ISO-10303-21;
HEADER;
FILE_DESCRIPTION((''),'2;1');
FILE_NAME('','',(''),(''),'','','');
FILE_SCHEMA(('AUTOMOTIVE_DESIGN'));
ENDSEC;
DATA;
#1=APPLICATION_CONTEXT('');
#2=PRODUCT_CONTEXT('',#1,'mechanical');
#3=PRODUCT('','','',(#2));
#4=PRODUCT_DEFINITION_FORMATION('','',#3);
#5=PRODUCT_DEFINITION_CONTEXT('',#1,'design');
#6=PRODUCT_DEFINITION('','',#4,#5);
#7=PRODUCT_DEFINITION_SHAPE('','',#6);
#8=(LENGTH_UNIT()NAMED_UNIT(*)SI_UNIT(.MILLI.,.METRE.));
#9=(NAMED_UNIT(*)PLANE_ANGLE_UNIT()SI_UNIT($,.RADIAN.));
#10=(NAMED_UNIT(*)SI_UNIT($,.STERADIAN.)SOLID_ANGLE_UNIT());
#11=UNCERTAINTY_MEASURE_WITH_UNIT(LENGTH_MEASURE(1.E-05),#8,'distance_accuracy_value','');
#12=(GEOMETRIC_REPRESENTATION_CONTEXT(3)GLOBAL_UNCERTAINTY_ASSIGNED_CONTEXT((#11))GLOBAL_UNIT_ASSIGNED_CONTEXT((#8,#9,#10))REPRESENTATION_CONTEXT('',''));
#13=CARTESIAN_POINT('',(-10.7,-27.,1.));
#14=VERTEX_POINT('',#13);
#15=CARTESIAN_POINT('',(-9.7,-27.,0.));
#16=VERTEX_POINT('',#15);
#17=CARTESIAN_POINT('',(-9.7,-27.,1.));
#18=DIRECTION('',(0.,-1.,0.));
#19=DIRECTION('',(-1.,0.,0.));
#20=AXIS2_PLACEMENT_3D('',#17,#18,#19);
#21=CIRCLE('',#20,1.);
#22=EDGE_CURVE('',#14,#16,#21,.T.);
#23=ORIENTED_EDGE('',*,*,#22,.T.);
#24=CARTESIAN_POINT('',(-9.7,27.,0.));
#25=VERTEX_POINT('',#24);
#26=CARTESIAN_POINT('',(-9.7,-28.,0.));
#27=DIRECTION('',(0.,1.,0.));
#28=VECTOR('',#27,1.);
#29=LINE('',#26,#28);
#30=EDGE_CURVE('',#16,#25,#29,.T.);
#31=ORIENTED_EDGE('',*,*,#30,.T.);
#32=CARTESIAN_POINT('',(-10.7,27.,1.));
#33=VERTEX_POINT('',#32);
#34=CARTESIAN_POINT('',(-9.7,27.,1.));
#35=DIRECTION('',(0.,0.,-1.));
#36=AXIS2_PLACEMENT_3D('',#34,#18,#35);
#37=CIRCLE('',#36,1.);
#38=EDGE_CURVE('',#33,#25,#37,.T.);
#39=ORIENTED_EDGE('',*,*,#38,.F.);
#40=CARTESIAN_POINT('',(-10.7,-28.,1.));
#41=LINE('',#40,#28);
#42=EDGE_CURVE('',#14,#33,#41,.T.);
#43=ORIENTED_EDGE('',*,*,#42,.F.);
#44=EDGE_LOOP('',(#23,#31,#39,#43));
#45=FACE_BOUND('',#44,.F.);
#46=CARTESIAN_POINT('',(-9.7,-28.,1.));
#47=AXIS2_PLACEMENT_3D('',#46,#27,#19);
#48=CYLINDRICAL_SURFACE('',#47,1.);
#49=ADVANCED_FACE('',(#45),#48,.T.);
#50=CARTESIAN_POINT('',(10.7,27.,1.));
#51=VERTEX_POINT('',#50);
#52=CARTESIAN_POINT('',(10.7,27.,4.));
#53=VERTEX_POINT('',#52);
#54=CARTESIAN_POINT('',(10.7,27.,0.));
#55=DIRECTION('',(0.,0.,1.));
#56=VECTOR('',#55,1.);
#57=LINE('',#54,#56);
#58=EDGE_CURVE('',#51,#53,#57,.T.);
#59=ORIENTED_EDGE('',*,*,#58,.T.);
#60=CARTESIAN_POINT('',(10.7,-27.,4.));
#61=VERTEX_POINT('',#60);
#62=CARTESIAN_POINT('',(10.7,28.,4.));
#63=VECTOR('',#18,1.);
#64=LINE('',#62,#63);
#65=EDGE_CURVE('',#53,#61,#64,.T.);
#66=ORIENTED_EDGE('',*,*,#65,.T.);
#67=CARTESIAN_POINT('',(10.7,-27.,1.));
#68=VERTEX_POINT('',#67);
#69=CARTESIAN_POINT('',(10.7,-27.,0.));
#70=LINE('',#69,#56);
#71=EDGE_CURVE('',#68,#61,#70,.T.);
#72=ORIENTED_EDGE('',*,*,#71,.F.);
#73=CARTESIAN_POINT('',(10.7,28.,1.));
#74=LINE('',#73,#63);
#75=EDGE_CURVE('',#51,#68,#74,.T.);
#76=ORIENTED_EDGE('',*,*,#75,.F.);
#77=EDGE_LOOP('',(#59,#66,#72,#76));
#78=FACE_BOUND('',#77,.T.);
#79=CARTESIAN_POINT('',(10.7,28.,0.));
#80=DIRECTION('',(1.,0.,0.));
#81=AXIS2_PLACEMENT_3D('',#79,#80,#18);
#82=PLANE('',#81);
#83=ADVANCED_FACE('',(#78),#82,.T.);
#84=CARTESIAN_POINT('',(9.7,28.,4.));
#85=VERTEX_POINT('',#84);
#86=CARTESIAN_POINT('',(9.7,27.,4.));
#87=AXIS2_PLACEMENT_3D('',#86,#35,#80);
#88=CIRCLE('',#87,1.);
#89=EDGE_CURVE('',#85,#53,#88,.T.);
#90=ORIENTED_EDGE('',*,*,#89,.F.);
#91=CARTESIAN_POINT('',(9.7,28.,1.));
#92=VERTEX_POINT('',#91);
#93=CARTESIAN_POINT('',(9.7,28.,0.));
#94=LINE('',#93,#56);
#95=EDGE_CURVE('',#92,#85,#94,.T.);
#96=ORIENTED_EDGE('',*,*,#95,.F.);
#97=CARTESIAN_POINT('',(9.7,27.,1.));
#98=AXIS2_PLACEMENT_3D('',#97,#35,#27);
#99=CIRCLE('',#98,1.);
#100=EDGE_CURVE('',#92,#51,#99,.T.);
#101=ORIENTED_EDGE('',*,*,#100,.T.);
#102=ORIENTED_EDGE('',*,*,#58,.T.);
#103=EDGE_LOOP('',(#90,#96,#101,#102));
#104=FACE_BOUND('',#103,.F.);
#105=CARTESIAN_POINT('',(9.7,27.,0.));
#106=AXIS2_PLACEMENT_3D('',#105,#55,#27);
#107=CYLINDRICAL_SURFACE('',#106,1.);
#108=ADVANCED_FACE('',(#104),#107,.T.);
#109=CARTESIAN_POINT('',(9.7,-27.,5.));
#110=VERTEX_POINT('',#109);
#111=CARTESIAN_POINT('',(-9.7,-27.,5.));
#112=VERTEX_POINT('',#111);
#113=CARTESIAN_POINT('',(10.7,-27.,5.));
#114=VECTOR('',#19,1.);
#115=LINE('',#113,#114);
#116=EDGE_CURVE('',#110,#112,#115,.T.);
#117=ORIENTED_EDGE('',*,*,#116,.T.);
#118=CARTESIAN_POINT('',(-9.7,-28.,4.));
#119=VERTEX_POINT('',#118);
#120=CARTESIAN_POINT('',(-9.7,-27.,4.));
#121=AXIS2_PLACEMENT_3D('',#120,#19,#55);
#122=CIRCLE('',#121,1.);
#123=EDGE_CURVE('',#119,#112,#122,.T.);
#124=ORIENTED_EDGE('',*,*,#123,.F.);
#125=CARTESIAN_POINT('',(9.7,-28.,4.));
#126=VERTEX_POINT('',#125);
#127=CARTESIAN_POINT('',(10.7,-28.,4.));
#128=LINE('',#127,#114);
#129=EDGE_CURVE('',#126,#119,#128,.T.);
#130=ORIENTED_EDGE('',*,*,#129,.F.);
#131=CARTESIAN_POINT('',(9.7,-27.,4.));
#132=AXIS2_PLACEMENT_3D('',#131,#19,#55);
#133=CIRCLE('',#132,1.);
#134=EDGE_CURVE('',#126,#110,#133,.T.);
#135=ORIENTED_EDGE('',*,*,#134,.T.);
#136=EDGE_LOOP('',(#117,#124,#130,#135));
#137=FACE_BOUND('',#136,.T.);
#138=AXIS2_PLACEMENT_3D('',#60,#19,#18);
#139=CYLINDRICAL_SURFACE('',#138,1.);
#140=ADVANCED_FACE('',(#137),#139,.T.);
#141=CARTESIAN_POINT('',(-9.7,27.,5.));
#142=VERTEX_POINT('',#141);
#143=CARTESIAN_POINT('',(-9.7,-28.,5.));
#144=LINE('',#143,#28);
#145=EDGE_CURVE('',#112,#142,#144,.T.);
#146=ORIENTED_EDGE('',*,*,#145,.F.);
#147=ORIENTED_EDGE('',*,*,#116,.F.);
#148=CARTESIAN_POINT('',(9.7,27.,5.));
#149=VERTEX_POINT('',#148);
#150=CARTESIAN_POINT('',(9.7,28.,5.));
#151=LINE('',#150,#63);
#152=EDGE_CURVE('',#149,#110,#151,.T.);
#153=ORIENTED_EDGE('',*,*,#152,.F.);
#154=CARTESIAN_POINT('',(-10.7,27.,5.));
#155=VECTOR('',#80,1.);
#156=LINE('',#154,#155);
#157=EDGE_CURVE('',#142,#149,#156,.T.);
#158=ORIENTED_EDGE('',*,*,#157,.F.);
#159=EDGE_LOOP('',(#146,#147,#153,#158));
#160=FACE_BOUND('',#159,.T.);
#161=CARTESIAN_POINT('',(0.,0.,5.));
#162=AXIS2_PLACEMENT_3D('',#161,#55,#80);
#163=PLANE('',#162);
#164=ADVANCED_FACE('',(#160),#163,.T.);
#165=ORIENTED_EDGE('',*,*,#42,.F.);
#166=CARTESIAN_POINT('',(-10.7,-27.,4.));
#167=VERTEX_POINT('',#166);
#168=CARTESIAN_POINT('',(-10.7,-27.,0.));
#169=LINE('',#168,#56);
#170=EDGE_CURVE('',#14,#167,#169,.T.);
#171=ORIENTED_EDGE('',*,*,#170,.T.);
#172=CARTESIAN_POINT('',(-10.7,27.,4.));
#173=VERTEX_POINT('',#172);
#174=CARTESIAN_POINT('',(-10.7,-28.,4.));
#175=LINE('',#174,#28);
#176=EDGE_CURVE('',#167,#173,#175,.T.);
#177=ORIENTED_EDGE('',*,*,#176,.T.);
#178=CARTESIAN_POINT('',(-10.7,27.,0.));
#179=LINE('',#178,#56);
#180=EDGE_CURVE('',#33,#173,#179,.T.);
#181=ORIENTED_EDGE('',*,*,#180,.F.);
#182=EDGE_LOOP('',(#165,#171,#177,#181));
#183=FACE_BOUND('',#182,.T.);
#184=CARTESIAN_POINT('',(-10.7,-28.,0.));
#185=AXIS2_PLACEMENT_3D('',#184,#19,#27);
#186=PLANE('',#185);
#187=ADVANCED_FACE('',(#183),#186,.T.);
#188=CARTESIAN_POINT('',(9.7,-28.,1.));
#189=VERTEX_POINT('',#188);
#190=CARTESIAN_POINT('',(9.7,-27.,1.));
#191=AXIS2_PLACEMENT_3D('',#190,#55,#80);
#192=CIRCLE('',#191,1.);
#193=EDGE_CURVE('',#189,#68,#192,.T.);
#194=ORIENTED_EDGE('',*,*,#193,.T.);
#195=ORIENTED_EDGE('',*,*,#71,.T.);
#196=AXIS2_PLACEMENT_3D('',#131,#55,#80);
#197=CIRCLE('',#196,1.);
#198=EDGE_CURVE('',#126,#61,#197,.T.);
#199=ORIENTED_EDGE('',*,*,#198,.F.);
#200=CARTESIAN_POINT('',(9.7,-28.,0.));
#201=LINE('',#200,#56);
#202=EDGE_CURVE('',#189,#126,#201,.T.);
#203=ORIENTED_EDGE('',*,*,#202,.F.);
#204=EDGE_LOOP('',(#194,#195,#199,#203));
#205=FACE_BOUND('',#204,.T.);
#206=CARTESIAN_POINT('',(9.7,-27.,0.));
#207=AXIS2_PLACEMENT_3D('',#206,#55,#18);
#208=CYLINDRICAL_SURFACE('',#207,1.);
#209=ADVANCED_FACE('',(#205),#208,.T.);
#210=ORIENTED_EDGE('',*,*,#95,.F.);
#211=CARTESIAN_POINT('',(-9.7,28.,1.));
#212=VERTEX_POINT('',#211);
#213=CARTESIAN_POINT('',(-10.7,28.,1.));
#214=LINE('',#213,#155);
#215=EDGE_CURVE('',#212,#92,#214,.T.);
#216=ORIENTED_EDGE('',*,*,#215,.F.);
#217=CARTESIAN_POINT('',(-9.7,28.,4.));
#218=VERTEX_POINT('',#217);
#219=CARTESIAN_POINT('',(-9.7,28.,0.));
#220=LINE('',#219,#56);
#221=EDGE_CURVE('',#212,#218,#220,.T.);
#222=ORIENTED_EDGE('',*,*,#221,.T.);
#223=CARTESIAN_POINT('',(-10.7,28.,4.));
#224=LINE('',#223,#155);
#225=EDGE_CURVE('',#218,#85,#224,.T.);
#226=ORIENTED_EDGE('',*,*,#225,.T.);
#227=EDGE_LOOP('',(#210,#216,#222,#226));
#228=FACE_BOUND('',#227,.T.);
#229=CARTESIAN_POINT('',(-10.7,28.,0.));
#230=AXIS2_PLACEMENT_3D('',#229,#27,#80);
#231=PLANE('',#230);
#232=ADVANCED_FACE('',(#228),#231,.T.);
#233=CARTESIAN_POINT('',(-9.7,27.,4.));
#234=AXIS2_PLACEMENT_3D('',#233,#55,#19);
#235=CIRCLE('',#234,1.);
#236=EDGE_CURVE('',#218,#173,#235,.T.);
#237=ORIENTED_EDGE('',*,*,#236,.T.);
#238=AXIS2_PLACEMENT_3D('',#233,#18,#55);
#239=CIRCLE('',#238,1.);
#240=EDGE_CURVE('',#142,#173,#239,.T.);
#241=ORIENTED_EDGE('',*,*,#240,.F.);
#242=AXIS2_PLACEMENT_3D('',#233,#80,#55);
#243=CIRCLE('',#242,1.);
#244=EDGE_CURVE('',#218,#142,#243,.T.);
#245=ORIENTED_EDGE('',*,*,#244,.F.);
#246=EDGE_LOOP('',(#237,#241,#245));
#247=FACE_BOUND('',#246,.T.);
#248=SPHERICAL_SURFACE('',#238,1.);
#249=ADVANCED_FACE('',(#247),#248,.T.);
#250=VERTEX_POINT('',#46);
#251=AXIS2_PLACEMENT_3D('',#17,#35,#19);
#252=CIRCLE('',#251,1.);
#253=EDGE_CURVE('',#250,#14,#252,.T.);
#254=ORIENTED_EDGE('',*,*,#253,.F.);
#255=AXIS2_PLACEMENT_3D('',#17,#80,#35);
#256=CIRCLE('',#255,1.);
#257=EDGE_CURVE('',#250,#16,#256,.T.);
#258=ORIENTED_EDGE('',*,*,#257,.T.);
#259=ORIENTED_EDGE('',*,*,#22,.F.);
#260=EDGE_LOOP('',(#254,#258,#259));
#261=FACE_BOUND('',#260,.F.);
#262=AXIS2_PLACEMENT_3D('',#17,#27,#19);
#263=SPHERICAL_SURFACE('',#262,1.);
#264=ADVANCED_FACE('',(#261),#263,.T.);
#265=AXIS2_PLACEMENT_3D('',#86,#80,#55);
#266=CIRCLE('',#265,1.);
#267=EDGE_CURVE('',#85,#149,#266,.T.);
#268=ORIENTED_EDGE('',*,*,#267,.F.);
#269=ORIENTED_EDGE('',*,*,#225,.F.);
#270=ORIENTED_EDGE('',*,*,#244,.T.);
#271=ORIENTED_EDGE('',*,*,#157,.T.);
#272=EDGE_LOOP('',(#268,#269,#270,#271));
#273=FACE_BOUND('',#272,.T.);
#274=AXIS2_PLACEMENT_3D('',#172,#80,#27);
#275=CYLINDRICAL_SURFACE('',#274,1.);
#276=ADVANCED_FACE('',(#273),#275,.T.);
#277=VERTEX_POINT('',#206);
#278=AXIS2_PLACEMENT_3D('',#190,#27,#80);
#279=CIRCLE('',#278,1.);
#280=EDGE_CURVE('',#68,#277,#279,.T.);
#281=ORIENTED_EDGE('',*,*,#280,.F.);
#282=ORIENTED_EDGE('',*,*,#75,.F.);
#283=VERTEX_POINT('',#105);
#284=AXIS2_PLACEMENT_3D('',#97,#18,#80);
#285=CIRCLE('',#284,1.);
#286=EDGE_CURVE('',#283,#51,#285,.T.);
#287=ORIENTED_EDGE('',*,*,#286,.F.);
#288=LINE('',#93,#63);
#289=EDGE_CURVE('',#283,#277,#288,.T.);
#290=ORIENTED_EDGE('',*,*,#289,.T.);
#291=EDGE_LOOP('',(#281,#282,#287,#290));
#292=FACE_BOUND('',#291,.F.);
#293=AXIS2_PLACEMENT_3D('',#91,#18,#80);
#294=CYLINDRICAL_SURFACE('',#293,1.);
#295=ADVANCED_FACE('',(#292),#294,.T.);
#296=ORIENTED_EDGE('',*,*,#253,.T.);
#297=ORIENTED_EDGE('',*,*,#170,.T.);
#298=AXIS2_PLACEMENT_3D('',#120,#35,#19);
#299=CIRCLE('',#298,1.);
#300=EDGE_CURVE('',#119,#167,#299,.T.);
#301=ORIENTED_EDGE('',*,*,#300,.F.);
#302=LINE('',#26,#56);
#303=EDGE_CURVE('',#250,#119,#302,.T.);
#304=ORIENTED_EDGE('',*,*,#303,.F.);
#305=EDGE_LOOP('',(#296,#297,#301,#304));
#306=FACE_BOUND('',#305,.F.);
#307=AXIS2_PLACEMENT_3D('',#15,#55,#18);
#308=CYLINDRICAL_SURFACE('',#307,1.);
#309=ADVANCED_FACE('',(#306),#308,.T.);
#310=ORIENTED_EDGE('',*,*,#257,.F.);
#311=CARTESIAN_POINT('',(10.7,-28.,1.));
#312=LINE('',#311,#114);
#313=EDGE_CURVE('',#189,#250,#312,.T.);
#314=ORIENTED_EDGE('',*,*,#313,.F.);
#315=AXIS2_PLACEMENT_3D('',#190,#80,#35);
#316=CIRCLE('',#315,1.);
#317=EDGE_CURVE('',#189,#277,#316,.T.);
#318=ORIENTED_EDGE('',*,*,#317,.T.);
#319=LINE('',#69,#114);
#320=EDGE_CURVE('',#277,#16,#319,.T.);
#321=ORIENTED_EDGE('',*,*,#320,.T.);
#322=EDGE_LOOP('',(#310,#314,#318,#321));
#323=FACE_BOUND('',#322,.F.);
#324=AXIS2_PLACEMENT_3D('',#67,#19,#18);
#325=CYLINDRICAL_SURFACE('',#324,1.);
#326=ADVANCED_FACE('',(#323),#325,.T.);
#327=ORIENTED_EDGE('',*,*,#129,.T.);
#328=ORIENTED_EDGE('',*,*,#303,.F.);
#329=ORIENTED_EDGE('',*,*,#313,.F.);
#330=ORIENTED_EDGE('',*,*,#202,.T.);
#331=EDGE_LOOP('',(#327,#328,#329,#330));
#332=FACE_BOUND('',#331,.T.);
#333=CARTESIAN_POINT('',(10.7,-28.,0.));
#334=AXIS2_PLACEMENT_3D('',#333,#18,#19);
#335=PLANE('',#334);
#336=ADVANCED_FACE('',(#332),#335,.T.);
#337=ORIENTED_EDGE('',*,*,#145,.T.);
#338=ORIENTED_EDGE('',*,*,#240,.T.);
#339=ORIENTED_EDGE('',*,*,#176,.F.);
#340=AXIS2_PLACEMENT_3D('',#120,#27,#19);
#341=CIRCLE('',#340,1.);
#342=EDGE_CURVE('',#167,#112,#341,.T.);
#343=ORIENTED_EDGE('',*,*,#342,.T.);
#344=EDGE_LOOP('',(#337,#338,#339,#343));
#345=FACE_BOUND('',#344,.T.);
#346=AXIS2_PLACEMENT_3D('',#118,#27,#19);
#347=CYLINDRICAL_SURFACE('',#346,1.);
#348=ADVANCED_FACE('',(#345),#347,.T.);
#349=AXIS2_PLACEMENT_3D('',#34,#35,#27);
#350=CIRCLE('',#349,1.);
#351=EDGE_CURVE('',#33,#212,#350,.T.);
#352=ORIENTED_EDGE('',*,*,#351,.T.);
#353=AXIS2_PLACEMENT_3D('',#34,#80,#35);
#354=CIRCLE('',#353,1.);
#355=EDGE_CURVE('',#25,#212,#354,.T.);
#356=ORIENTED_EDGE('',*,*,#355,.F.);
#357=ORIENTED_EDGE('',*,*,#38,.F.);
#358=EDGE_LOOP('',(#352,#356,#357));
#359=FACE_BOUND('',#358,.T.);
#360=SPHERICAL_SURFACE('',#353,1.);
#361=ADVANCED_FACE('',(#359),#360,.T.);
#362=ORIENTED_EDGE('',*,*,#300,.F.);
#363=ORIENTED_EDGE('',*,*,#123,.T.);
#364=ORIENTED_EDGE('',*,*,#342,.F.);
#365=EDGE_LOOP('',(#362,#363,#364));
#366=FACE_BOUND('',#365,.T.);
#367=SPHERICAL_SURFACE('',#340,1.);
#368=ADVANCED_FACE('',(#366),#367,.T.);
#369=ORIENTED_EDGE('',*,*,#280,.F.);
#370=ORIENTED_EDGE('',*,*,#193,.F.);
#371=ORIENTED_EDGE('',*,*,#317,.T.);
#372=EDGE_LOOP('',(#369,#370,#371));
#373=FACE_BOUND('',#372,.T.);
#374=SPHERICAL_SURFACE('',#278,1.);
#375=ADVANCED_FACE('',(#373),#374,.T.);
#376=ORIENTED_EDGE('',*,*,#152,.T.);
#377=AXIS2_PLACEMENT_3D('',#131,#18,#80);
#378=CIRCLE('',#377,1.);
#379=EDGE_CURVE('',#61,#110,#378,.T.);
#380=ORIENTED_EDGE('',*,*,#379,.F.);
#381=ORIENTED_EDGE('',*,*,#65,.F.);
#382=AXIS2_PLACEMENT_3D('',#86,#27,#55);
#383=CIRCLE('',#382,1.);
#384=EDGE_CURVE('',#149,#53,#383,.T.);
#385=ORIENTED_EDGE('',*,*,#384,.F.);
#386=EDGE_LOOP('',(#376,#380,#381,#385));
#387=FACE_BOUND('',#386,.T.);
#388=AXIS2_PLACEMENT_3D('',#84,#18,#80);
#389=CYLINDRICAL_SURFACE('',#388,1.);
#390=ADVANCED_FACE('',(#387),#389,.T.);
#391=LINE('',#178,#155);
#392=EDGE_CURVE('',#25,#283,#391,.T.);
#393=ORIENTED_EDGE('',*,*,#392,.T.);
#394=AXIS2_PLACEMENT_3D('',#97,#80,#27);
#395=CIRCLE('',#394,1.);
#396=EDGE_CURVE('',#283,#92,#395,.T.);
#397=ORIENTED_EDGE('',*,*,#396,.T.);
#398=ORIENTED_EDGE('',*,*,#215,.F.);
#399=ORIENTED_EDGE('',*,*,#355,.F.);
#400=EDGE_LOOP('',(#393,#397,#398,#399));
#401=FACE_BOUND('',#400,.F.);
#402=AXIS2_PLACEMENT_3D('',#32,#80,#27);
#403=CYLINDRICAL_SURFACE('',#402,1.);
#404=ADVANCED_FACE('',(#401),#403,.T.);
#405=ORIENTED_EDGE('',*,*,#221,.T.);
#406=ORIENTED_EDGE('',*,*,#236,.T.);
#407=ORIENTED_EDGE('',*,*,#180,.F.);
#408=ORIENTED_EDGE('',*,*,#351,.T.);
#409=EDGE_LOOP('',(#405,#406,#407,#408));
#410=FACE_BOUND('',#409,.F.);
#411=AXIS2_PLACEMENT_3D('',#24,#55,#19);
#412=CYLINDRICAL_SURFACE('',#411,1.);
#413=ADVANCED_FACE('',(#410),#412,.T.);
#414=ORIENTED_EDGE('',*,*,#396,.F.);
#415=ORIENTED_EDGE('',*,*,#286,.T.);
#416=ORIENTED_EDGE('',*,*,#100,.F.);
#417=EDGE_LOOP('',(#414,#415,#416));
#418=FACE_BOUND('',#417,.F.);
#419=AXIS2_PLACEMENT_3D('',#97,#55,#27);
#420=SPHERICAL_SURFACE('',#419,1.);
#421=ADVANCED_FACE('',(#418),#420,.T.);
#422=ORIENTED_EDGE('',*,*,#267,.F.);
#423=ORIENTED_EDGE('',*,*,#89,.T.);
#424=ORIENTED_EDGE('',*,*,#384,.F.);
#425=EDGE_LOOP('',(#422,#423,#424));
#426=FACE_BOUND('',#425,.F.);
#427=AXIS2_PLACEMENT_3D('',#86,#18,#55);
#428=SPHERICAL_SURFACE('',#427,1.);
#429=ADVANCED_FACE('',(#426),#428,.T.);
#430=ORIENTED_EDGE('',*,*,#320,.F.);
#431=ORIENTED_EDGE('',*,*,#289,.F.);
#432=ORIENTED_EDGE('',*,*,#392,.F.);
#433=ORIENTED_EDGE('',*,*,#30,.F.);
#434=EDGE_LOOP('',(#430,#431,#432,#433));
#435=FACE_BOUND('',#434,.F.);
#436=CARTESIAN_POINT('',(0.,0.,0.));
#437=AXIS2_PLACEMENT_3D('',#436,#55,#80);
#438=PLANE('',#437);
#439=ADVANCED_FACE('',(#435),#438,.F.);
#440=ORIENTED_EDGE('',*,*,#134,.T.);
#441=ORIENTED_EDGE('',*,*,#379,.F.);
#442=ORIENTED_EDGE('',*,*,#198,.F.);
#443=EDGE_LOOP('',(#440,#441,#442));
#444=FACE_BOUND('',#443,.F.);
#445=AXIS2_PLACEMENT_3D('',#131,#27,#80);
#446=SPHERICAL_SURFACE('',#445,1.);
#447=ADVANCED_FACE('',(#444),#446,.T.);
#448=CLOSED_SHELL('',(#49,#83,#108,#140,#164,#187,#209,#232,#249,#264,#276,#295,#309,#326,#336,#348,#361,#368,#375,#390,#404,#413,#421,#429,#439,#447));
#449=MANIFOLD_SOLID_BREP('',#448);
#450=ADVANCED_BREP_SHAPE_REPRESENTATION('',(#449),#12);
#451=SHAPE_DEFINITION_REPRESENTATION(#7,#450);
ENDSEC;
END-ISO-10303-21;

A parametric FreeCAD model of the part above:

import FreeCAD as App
import Part
import Sketcher


def add_polygon(sketch, points):
    """Adds a closed chain of lines whose ends are joined by coincident constraints."""
    first, n = sketch.GeometryCount, len(points)
    for a, b in zip(points, points[1:] + points[:1]):
        sketch.addGeometry(Part.LineSegment(App.Vector(*a, 0), App.Vector(*b, 0)), False)
    for i in range(n):
        sketch.addConstraint(Sketcher.Constraint("Coincident", first + i, 2, first + (i + 1) % n, 1))

doc = App.newDocument("Part")
body = doc.addObject("PartDesign::Body", "Body")

# Sketch on XY plane
sketch1 = body.newObject("Sketcher::SketchObject", "Sketch")
sketch1.AttachmentSupport = (doc.getObject("XY_Plane"), [""])
sketch1.MapMode = "FlatFace"
add_polygon(sketch1, [(-11, -28), (11, -28), (11, 28), (-11, 28)])  # lines 0-3
sketch1.addConstraint(Sketcher.Constraint("Horizontal", 0))
sketch1.addConstraint(Sketcher.Constraint("Vertical", 1))
sketch1.addConstraint(Sketcher.Constraint("Horizontal", 2))
sketch1.addConstraint(Sketcher.Constraint("Vertical", 3))
sketch1.addConstraint(Sketcher.Constraint("Symmetric", 0, 2, 2, 2, -1, 1))
sketch1.addConstraint(Sketcher.Constraint("DistanceY", 1, 1, 1, 2, 56.0))
sketch1.addConstraint(Sketcher.Constraint("DistanceX", 0, 1, 0, 2, 21.4))
pad1 = body.newObject("PartDesign::Pad", "Pad")
pad1.Profile = sketch1
pad1.Length = 5
doc.recompute()

fillet = body.newObject("PartDesign::Fillet", "Fillet")
fillet.Base = (pad1, ["Edge1"])
fillet.UseAllEdges = True
fillet.Radius = 1

doc.recompute()
